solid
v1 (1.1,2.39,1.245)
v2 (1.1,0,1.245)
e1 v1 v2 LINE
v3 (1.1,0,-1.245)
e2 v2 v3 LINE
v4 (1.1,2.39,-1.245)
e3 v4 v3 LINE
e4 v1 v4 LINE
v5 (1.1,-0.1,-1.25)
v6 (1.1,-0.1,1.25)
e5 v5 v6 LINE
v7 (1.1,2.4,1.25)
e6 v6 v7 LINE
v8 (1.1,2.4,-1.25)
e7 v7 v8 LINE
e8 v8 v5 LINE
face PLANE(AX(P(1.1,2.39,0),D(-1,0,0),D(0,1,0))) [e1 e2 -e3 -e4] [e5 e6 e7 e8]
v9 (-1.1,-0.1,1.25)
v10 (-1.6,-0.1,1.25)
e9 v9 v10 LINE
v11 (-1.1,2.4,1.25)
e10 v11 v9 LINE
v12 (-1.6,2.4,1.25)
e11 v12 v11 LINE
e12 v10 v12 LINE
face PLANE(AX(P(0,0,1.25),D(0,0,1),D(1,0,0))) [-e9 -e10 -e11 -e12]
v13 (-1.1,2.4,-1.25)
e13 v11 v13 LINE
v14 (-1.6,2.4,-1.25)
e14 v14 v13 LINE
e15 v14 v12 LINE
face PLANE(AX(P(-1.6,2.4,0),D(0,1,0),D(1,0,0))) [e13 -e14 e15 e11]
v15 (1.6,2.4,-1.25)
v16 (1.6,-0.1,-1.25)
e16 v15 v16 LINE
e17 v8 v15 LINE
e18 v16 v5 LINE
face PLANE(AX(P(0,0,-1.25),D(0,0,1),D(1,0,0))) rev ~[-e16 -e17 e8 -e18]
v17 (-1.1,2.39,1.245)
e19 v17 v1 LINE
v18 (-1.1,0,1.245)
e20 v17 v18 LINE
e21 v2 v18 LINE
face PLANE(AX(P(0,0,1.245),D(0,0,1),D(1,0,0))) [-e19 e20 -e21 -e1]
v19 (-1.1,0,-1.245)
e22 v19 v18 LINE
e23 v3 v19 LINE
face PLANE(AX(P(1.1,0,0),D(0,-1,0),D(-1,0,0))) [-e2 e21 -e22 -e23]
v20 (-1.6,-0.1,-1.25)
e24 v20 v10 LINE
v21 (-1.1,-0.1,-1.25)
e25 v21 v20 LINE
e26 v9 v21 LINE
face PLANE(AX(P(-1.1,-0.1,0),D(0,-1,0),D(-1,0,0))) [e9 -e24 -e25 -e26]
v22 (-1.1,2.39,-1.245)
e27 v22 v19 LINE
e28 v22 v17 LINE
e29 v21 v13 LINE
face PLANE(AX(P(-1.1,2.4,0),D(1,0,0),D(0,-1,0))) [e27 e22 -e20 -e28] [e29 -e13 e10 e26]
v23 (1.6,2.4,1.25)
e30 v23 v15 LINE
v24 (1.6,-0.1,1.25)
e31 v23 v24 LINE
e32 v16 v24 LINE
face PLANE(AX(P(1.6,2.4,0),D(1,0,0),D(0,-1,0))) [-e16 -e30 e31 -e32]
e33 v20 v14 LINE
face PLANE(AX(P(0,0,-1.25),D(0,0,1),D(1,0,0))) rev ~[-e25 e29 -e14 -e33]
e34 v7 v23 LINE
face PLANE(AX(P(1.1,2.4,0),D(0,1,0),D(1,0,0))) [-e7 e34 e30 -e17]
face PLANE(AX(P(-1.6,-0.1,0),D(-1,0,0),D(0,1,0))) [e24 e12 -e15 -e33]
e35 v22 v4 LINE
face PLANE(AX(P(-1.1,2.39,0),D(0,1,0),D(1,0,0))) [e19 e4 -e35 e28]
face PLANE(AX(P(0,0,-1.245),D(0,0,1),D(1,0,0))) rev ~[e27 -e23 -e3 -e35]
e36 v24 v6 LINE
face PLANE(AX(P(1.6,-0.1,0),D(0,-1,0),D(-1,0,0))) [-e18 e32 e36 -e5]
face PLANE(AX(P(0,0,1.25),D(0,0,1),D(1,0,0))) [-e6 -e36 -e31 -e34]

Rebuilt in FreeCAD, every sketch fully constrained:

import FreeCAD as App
import Part
import Sketcher

V = App.Vector

doc = App.newDocument("Part")
params = doc.addObject("Spreadsheet::Sheet", "Params")
for row, (alias, value) in enumerate([
    ("sketch1_width", "0.5 mm"),
    ("sketch1_height", "2.5 mm"),
    ("pad1_length", "2.5 mm"),
    ("sketch2_width", "2.2 mm"),
    ("sketch2_height", "2.39 mm"),
    ("pad2_length", "2.49 mm"),
], start=1):
    params.set(f"A{row}", alias)
    params.set(f"B{row}", "=" + value)
    params.setAlias(f"B{row}", alias)

body = doc.addObject("PartDesign::Body", "Body")
body.AllowCompound = True

# Sketch on XY plane
sketch1 = body.newObject("Sketcher::SketchObject", "Sketch")
sketch1.AttachmentSupport = (doc.getObject("XY_Plane"), [""])
sketch1.MapMode = "FlatFace"
sketch1.addGeometry([
    Part.LineSegment(V(-1.1, 2.4, 0), V(-1.6, 2.4, 0)),  # 0
    Part.LineSegment(V(-1.6, 2.4, 0), V(-1.6, -0.1, 0)),  # 1
    Part.LineSegment(V(-1.6, -0.1, 0), V(-1.1, -0.1, 0)),  # 2
    Part.LineSegment(V(-1.1, -0.1, 0), V(-1.1, 2.4, 0)),  # 3
    Part.LineSegment(V(1.1, 2.4, 0), V(1.1, -0.1, 0)),  # 4
    Part.LineSegment(V(1.1, -0.1, 0), V(1.6, -0.1, 0)),  # 5
    Part.LineSegment(V(1.6, -0.1, 0), V(1.6, 2.4, 0)),  # 6
    Part.LineSegment(V(1.6, 2.4, 0), V(1.1, 2.4, 0)),  # 7
], False)
sketch1.addConstraint([
    Sketcher.Constraint("Coincident", 0, 2, 1, 1),
    Sketcher.Constraint("Coincident", 1, 2, 2, 1),
    Sketcher.Constraint("Coincident", 2, 2, 3, 1),
    Sketcher.Constraint("Coincident", 3, 2, 0, 1),
    Sketcher.Constraint("Coincident", 4, 2, 5, 1),
    Sketcher.Constraint("Coincident", 5, 2, 6, 1),
    Sketcher.Constraint("Coincident", 6, 2, 7, 1),
    Sketcher.Constraint("Coincident", 7, 2, 4, 1),
    Sketcher.Constraint("Horizontal", 0),
    Sketcher.Constraint("Vertical", 1),
    Sketcher.Constraint("Horizontal", 2),
    Sketcher.Constraint("Vertical", 3),
    Sketcher.Constraint("Vertical", 4),
    Sketcher.Constraint("Horizontal", 5),
    Sketcher.Constraint("Vertical", 6),
    Sketcher.Constraint("Horizontal", 7),
    Sketcher.Constraint("Symmetric", 2, 2, 4, 2, -2),
    Sketcher.Constraint("Symmetric", 0, 2, 6, 2, -2),
    Sketcher.Constraint("DistanceX", 0, 2, 0, 1, 0.5),
    Sketcher.Constraint("DistanceY", 1, 2, 1, 1, 2.5),
    Sketcher.Constraint("DistanceY", 1, 2, -1, 1, 0.1),
    Sketcher.Constraint("DistanceX", 1, 2, 5, 2, 3.2),
])
sketch1.setExpression("Constraints[18]", "Params.sketch1_width")
sketch1.setExpression("Constraints[19]", "Params.sketch1_height")
pad1 = body.newObject("PartDesign::Pad", "Pad")
pad1.Profile = sketch1
pad1.setExpression("Length", "Params.pad1_length")
pad1.Midplane = True

# Sketch on XY plane
sketch2 = body.newObject("Sketcher::SketchObject", "Sketch001")
sketch2.AttachmentSupport = (doc.getObject("XY_Plane"), [""])
sketch2.MapMode = "FlatFace"
sketch2.addGeometry([
    Part.LineSegment(V(1.1, 2.39, 0), V(-1.1, 2.39, 0)),
    Part.LineSegment(V(-1.1, 2.39, 0), V(-1.1, 0, 0)),
    Part.LineSegment(V(-1.1, 0, 0), V(1.1, 0, 0)),
    Part.LineSegment(V(1.1, 0, 0), V(1.1, 2.39, 0)),
], False)
sketch2.addConstraint([
    Sketcher.Constraint("Coincident", 0, 2, 1, 1),
    Sketcher.Constraint("Coincident", 1, 2, 2, 1),
    Sketcher.Constraint("Coincident", 2, 2, 3, 1),
    Sketcher.Constraint("Coincident", 3, 2, 0, 1),
    Sketcher.Constraint("Horizontal", 0),
    Sketcher.Constraint("Vertical", 1),
    Sketcher.Constraint("Horizontal", 2),
    Sketcher.Constraint("Vertical", 3),
    Sketcher.Constraint("Symmetric", 1, 2, 2, 2, -1, 1),
    Sketcher.Constraint("DistanceX", 0, 2, 0, 1, 2.2),
    Sketcher.Constraint("DistanceY", 1, 2, 1, 1, 2.39),
])
sketch2.setExpression("Constraints[9]", "Params.sketch2_width")
sketch2.setExpression("Constraints[10]", "Params.sketch2_height")
pad2 = body.newObject("PartDesign::Pad", "Pad001")
pad2.Profile = sketch2
pad2.setExpression("Length", "Params.pad2_length")
pad2.Midplane = True

doc.recompute()
